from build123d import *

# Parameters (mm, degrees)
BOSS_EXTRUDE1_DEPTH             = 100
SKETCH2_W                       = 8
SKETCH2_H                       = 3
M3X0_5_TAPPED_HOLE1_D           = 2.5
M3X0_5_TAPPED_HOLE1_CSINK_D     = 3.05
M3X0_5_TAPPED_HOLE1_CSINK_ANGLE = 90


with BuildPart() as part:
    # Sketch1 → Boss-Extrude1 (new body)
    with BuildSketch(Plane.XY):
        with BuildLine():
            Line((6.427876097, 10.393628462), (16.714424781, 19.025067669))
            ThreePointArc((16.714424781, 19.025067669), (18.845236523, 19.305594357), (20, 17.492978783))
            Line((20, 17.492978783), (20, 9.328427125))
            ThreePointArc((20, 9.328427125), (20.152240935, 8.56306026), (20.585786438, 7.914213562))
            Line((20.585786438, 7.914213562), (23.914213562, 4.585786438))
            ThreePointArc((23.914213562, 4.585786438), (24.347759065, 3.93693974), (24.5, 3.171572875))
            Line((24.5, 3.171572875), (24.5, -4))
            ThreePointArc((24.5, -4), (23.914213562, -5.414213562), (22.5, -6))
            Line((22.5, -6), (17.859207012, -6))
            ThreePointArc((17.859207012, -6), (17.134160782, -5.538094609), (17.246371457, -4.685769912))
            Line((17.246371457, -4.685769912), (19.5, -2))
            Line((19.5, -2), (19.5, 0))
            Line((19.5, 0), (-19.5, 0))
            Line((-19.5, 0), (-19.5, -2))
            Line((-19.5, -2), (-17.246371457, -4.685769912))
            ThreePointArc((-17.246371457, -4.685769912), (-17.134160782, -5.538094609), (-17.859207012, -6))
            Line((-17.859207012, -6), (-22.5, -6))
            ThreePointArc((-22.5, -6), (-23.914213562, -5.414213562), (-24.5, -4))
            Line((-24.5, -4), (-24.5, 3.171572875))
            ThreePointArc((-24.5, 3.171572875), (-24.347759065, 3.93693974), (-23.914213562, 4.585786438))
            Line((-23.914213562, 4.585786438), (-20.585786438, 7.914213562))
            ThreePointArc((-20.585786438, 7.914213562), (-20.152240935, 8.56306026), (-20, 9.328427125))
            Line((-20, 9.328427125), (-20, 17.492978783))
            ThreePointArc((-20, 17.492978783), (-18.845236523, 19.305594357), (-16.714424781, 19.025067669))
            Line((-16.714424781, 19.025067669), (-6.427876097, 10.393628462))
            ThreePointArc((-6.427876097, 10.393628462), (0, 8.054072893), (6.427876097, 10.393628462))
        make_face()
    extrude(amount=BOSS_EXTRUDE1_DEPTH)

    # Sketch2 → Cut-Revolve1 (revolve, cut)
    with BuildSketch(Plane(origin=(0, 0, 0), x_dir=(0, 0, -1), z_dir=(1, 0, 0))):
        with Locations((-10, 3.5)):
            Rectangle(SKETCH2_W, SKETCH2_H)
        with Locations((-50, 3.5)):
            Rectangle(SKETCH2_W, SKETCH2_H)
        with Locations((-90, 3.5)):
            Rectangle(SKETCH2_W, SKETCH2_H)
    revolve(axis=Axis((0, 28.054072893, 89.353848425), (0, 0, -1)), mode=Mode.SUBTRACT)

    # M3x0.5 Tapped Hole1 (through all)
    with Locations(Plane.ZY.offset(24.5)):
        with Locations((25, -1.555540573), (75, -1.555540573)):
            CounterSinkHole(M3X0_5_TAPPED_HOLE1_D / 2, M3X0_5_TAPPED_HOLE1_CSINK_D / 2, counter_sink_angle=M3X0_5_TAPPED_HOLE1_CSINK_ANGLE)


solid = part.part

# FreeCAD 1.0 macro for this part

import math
import FreeCAD as App
import Part
import Sketcher
from FreeCAD import Vector
Q = App.Units.Quantity

doc = App.newDocument("Part")
body = doc.addObject("PartDesign::Body", "Body")

sketch1 = body.newObject("Sketcher::SketchObject", "Sketch")
sketch1.AttachmentSupport = (doc.getObject("XY_Plane"), [""])
sketch1.MapMode = "FlatFace"
sketch1.addGeometry([
    Part.LineSegment(Vector(16.7, 19, 0), Vector(6.4, 10.4, 0)),
    Part.ArcOfCircle(Part.Circle(Vector(0, 18.1, 0), Vector(0, 0, 1), 10), math.radians(-130), math.radians(-50)),
    Part.LineSegment(Vector(-6.4, 10.4, 0), Vector(-16.7, 19, 0)),
    Part.ArcOfCircle(Part.Circle(Vector(-18, 17.5, 0), Vector(0, 0, 1), 2), math.radians(50), math.radians(180)),
    Part.LineSegment(Vector(-20, 17.5, 0), Vector(-20, 9.3, 0)),
    Part.ArcOfCircle(Part.Circle(Vector(-22, 9.3, 0), Vector(0, 0, 1), 2), math.radians(-45), math.radians(0)),
    Part.LineSegment(Vector(-20.6, 7.9, 0), Vector(-23.9, 4.6, 0)),
    Part.ArcOfCircle(Part.Circle(Vector(-22.5, 3.2, 0), Vector(0, 0, 1), 2), math.radians(135), math.radians(180)),
    Part.LineSegment(Vector(-24.5, 3.2, 0), Vector(-24.5, -4, 0)),
    Part.ArcOfCircle(Part.Circle(Vector(-22.5, -4, 0), Vector(0, 0, 1), 2), math.radians(-180), math.radians(-90)),
    Part.LineSegment(Vector(-22.5, -6, 0), Vector(-17.9, -6, 0)),
    Part.ArcOfCircle(Part.Circle(Vector(-17.9, -5.2, 0), Vector(0, 0, 1), 0.8), math.radians(-90), math.radians(40)),
    Part.LineSegment(Vector(-17.2, -4.7, 0), Vector(-19.5, -2, 0)),
    Part.LineSegment(Vector(-19.5, -2, 0), Vector(-19.5, 0, 0)),
    Part.LineSegment(Vector(-19.5, 0, 0), Vector(19.5, 0, 0)),
    Part.LineSegment(Vector(19.5, 0, 0), Vector(19.5, -2, 0)),
    Part.LineSegment(Vector(19.5, -2, 0), Vector(17.2, -4.7, 0)),
    Part.ArcOfCircle(Part.Circle(Vector(17.9, -5.2, 0), Vector(0, 0, 1), 0.8), math.radians(140), math.radians(270)),
    Part.LineSegment(Vector(17.9, -6, 0), Vector(22.5, -6, 0)),
    Part.ArcOfCircle(Part.Circle(Vector(22.5, -4, 0), Vector(0, 0, 1), 2), math.radians(-90), math.radians(0)),
    Part.LineSegment(Vector(24.5, -4, 0), Vector(24.5, 3.2, 0)),
    Part.ArcOfCircle(Part.Circle(Vector(22.5, 3.2, 0), Vector(0, 0, 1), 2), math.radians(0), math.radians(45)),
    Part.LineSegment(Vector(23.9, 4.6, 0), Vector(20.6, 7.9, 0)),
    Part.ArcOfCircle(Part.Circle(Vector(22, 9.3, 0), Vector(0, 0, 1), 2), math.radians(180), math.radians(225)),
    Part.LineSegment(Vector(20, 9.3, 0), Vector(20, 17.5, 0)),
    Part.ArcOfCircle(Part.Circle(Vector(18, 17.5, 0), Vector(0, 0, 1), 2), math.radians(0), math.radians(130)),
], False)
sketch1.addConstraint([
    Sketcher.Constraint("Tangent", 0, 2, 1, 2),
    Sketcher.Constraint("Tangent", 1, 1, 2, 1),
    Sketcher.Constraint("Tangent", 2, 2, 3, 1),
    Sketcher.Constraint("Tangent", 3, 2, 4, 1),
    Sketcher.Constraint("Tangent", 4, 2, 5, 2),
    Sketcher.Constraint("Tangent", 5, 1, 6, 1),
    Sketcher.Constraint("Tangent", 6, 2, 7, 1),
    Sketcher.Constraint("Tangent", 7, 2, 8, 1),
    Sketcher.Constraint("Tangent", 8, 2, 9, 1),
    Sketcher.Constraint("Tangent", 9, 2, 10, 1),
    Sketcher.Constraint("Tangent", 10, 2, 11, 1),
    Sketcher.Constraint("Tangent", 11, 2, 12, 1),
    Sketcher.Constraint("Coincident", 12, 2, 13, 1),
    Sketcher.Constraint("Coincident", 13, 2, 14, 1),
    Sketcher.Constraint("Coincident", 14, 2, 15, 1),
    Sketcher.Constraint("Coincident", 15, 2, 16, 1),
    Sketcher.Constraint("Tangent", 16, 2, 17, 1),
    Sketcher.Constraint("Tangent", 17, 2, 18, 1),
    Sketcher.Constraint("Tangent", 18, 2, 19, 1),
    Sketcher.Constraint("Tangent", 19, 2, 20, 1),
    Sketcher.Constraint("Tangent", 20, 2, 21, 1),
    Sketcher.Constraint("Tangent", 21, 2, 22, 1),
    Sketcher.Constraint("Tangent", 22, 2, 23, 2),
    Sketcher.Constraint("Tangent", 23, 1, 24, 1),
    Sketcher.Constraint("Tangent", 24, 2, 25, 1),
    Sketcher.Constraint("Tangent", 25, 2, 0, 1),
    Sketcher.Constraint("Vertical", 4),
    Sketcher.Constraint("Vertical", 8),
    Sketcher.Constraint("Horizontal", 10),
    Sketcher.Constraint("Vertical", 13),
    Sketcher.Constraint("Horizontal", 14),
    Sketcher.Constraint("Vertical", 15),
    Sketcher.Constraint("Horizontal", 18),
    Sketcher.Constraint("Vertical", 20),
    Sketcher.Constraint("Vertical", 24),
    Sketcher.Constraint("Equal", 3, 5),
    Sketcher.Constraint("Equal", 5, 7),
    Sketcher.Constraint("Equal", 7, 9),
    Sketcher.Constraint("Equal", 11, 17),
    Sketcher.Constraint("Equal", 9, 19),
    Sketcher.Constraint("Equal", 19, 21),
    Sketcher.Constraint("Equal", 21, 23),
    Sketcher.Constraint("Equal", 23, 25),
    Sketcher.Constraint("Symmetric", 13, 2, 14, 2, -1, 1),
    Sketcher.Constraint("Symmetric", 11, 3, 17, 3, -2),
    Sketcher.Constraint("Symmetric", 7, 3, 21, 3, -2),
    Sketcher.Constraint("Symmetric", 5, 3, 23, 3, -2),
    Sketcher.Constraint("Symmetric", 0, 2, 1, 1, -2),
    Sketcher.Constraint("Perpendicular", 0, 12),
    Sketcher.Constraint("Perpendicular", 2, 16),
    Sketcher.Constraint("Perpendicular", 6, 22),
    Sketcher.Constraint("Radius", 1, 10.0),
    Sketcher.Constraint("Radius", 3, 2.0),
    Sketcher.Constraint("Radius", 11, 0.8),
    Sketcher.Constraint("DistanceX", 14, 1, 14, 2, 39.0),
    Sketcher.Constraint("DistanceY", 13, 1, 13, 2, 2.0),
    Sketcher.Constraint("Angle", 0, Q("-140 deg")),
    Sketcher.Constraint("DistanceX", 3, 3, -1, 1, 18.0),
    Sketcher.Constraint("DistanceY", 9, 3, -1, 1, 4.0),
    Sketcher.Constraint("DistanceX", 9, 3, 19, 3, 45.0),
    Sketcher.Constraint("DistanceY", 4, 2, 4, 1, 8.164552),
    Sketcher.Constraint("DistanceY", 8, 2, 8, 1, 7.171573),
])
pad1 = body.newObject("PartDesign::Pad", "Pad")
pad1.Profile = sketch1
pad1.Length = 100

sketch2 = body.newObject("Sketcher::SketchObject", "Sketch001")
sketch2.AttachmentSupport = (doc.getObject("YZ_Plane"), [""])
sketch2.MapMode = "FlatFace"
sketch2.addGeometry([
    Part.LineSegment(Vector(5, 14, 0), Vector(2, 14, 0)),
    Part.LineSegment(Vector(2, 14, 0), Vector(2, 6, 0)),
    Part.LineSegment(Vector(2, 6, 0), Vector(5, 6, 0)),
    Part.LineSegment(Vector(5, 6, 0), Vector(5, 14, 0)),
    Part.LineSegment(Vector(5, 54, 0), Vector(2, 54, 0)),
    Part.LineSegment(Vector(2, 54, 0), Vector(2, 46, 0)),
    Part.LineSegment(Vector(2, 46, 0), Vector(5, 46, 0)),
    Part.LineSegment(Vector(5, 46, 0), Vector(5, 54, 0)),
    Part.LineSegment(Vector(5, 94, 0), Vector(2, 94, 0)),
    Part.LineSegment(Vector(2, 94, 0), Vector(2, 86, 0)),
    Part.LineSegment(Vector(2, 86, 0), Vector(5, 86, 0)),
    Part.LineSegment(Vector(5, 86, 0), Vector(5, 94, 0)),
], False)
sketch2.addGeometry(Part.LineSegment(Vector(28.1, 94, 0), Vector(28.1, 6, 0)), True)
sketch2.addConstraint([
    Sketcher.Constraint("Coincident", 0, 2, 1, 1),
    Sketcher.Constraint("Coincident", 1, 2, 2, 1),
    Sketcher.Constraint("Coincident", 2, 2, 3, 1),
    Sketcher.Constraint("Coincident", 3, 2, 0, 1),
    Sketcher.Constraint("Coincident", 4, 2, 5, 1),
    Sketcher.Constraint("Coincident", 5, 2, 6, 1),
    Sketcher.Constraint("Coincident", 6, 2, 7, 1),
    Sketcher.Constraint("Coincident", 7, 2, 4, 1),
    Sketcher.Constraint("Coincident", 8, 2, 9, 1),
    Sketcher.Constraint("Coincident", 9, 2, 10, 1),
    Sketcher.Constraint("Coincident", 10, 2, 11, 1),
    Sketcher.Constraint("Coincident", 11, 2, 8, 1),
    Sketcher.Constraint("Horizontal", 0),
    Sketcher.Constraint("Vertical", 1),
    Sketcher.Constraint("Horizontal", 2),
    Sketcher.Constraint("Vertical", 3),
    Sketcher.Constraint("Horizontal", 4),
    Sketcher.Constraint("Vertical", 5),
    Sketcher.Constraint("Horizontal", 6),
    Sketcher.Constraint("Vertical", 7),
    Sketcher.Constraint("Horizontal", 8),
    Sketcher.Constraint("Vertical", 9),
    Sketcher.Constraint("Horizontal", 10),
    Sketcher.Constraint("Vertical", 11),
    Sketcher.Constraint("Vertical", 12),
    Sketcher.Constraint("Horizontal", 11, 2, 12, 1),
    Sketcher.Constraint("Horizontal", 2, 2, 12, 2),
    Sketcher.Constraint("Vertical", 1, 2, 4, 2),
    Sketcher.Constraint("Vertical", 3, 2, 6, 2),
    Sketcher.Constraint("Vertical", 5, 2, 8, 2),
    Sketcher.Constraint("Vertical", 7, 2, 10, 2),
    Sketcher.Constraint("Equal", 3, 5),
    Sketcher.Constraint("Equal", 7, 9),
    Sketcher.Constraint("DistanceX", 0, 2, 0, 1, 3.0),
    Sketcher.Constraint("DistanceY", 1, 2, 1, 1, 8.0),
    Sketcher.Constraint("DistanceY", 12, 2, 12, 1, 88.0),
    Sketcher.Constraint("DistanceX", -1, 1, 0, 2, 2.0),
    Sketcher.Constraint("DistanceY", -1, 1, 0, 2, 14.0),
    Sketcher.Constraint("DistanceY", -1, 1, 4, 2, 54.0),
    Sketcher.Constraint("DistanceX", -1, 1, 12, 1, 28.054073),
])
groove = body.newObject("PartDesign::Groove", "Groove")
groove.Profile = sketch2
groove.ReferenceAxis = (sketch2, ["Axis0"])
groove.Angle = 360

sketch3 = body.newObject("Sketcher::SketchObject", "Sketch002")
sketch3.AttachmentSupport = (doc.getObject("YZ_Plane"), [""])
sketch3.MapMode = "FlatFace"
sketch3.AttachmentOffset = App.Placement(Vector(0, 0, -24.5), App.Rotation())
sketch3.addGeometry([
    Part.Circle(Vector(-1.6, 25, 0), Vector(0, 0, 1), 1.2),
    Part.Circle(Vector(-1.6, 75, 0), Vector(0, 0, 1), 1.2),
], False)
sketch3.addConstraint([
    Sketcher.Constraint("Equal", 0, 1),
    Sketcher.Constraint("Vertical", 0, 3, 1, 3),
    Sketcher.Constraint("Diameter", 0, 2.5),
    Sketcher.Constraint("DistanceY", -1, 1, 0, 3, 25.0),
    Sketcher.Constraint("DistanceY", -1, 1, 1, 3, 75.0),
    Sketcher.Constraint("DistanceX", 0, 3, -1, 1, 1.555541),
])
doc.recompute()
hole = body.newObject("PartDesign::Hole", "Hole")
hole.Profile = sketch3
hole.ThreadType = "None"
hole.Diameter = 2.5
hole.DepthType = "ThroughAll"
hole.HoleCutType = "Countersink"
hole.HoleCutDiameter = 3.05
hole.HoleCutCountersinkAngle = 90
hole.Reversed = True

doc.recompute()
